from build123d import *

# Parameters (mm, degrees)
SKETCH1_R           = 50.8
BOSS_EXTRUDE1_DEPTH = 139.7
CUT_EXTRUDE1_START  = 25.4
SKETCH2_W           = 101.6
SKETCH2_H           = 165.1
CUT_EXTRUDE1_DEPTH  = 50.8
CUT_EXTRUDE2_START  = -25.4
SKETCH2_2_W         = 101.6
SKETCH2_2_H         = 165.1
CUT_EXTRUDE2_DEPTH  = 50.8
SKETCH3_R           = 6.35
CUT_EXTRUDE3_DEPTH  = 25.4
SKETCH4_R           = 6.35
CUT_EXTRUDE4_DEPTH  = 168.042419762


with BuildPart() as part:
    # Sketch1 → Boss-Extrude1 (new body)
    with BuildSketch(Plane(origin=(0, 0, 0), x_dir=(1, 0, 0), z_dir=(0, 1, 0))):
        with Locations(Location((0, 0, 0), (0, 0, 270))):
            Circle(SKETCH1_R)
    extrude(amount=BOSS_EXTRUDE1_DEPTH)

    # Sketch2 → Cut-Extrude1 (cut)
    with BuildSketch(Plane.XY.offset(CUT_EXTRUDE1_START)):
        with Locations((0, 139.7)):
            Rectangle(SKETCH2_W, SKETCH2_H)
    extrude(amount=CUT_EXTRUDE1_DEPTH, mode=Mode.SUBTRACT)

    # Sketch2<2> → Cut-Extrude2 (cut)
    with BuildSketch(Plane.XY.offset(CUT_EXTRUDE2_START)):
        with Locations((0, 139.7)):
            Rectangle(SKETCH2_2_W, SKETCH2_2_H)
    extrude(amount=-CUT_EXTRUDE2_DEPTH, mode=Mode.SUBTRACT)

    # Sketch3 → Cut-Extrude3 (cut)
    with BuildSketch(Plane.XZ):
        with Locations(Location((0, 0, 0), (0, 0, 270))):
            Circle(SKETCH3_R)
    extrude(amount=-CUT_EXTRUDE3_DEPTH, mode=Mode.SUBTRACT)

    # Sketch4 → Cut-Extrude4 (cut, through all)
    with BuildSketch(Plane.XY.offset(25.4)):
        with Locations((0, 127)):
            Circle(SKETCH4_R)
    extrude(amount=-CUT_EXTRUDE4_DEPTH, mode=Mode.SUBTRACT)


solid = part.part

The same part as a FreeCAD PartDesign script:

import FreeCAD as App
import Part
import Sketcher
from FreeCAD import Vector
Q = App.Units.Quantity


def add_polygon(sketch, points):
    """Adds a closed chain of lines whose ends are joined by coincident constraints."""
    first, n = sketch.GeometryCount, len(points)
    for a, b in zip(points, points[1:] + points[:1]):
        sketch.addGeometry(Part.LineSegment(App.Vector(*a, 0), App.Vector(*b, 0)), False)
    for i in range(n):
        sketch.addConstraint(Sketcher.Constraint("Coincident", first + i, 2, first + (i + 1) % n, 1))

doc = App.newDocument("Part")
params = doc.addObject("Spreadsheet::Sheet", "Params")
for row, (alias, value) in enumerate([
    ("sketch1_diameter", "4 in"),
    ("pad1_length", "5.5 in"),
    ("sketch2_width", "4 in"),
    ("sketch2_height", "6.5 in"),
    ("pocket1_length", "2 in"),
    ("sketch3_width", "4 in"),
    ("sketch3_height", "6.5 in"),
    ("pocket2_length", "2 in"),
    ("sketch4_diameter", "0.5 in"),
    ("pocket3_length", "1 in"),
    ("sketch5_diameter", "0.5 in"),
], start=1):
    params.set(f"A{row}", alias)
    params.set(f"B{row}", "=" + value)
    params.setAlias(f"B{row}", alias)

body = doc.addObject("PartDesign::Body", "Body")

# Sketch on XZ plane
sketch1 = body.newObject("Sketcher::SketchObject", "Sketch")
sketch1.AttachmentSupport = (doc.getObject("XZ_Plane"), [""])
sketch1.MapMode = "FlatFace"
sketch1.addGeometry(Part.Circle(Vector(0, 0, 0), Vector(0, 0, 1), 50.8), False)
sketch1.addConstraint(Sketcher.Constraint("Coincident", 0, 3, -1, 1))
sketch1.addConstraint(Sketcher.Constraint("Diameter", 0, Q("4 in")))
sketch1.setExpression("Constraints[1]", "Params.sketch1_diameter")
pad1 = body.newObject("PartDesign::Pad", "Pad")
pad1.Profile = sketch1
pad1.setExpression("Length", "Params.pad1_length")
pad1.Reversed = True

# Sketch on XY plane
sketch2 = body.newObject("Sketcher::SketchObject", "Sketch001")
sketch2.AttachmentSupport = (doc.getObject("XY_Plane"), [""])
sketch2.MapMode = "FlatFace"
sketch2.AttachmentOffset = App.Placement(Vector(0, 0, 1 * 25.4), App.Rotation())
add_polygon(sketch2, [(-50.8, 222.25), (-50.8, 57.15), (50.8, 57.15), (50.8, 222.25)])  # lines 0-3
sketch2.addConstraint(Sketcher.Constraint("Vertical", 0))
sketch2.addConstraint(Sketcher.Constraint("Horizontal", 1))
sketch2.addConstraint(Sketcher.Constraint("Vertical", 2))
sketch2.addConstraint(Sketcher.Constraint("Horizontal", 3))
sketch2.addConstraint(Sketcher.Constraint("DistanceX", 1, 1, 1, 2, Q("4 in")))
sketch2.addConstraint(Sketcher.Constraint("DistanceY", 0, 2, 0, 1, Q("6.5 in")))
sketch2.addConstraint(Sketcher.Constraint("DistanceX", 0, 2, -1, 1, Q("2 in")))
sketch2.addConstraint(Sketcher.Constraint("DistanceY", -1, 1, 0, 2, Q("2.25 in")))
sketch2.setExpression("Constraints[8]", "Params.sketch2_width")
sketch2.setExpression("Constraints[9]", "Params.sketch2_height")
pocket1 = body.newObject("PartDesign::Pocket", "Pocket")
pocket1.Profile = sketch2
pocket1.setExpression("Length", "Params.pocket1_length")
pocket1.Reversed = True

# Sketch on XY plane
sketch3 = body.newObject("Sketcher::SketchObject", "Sketch002")
sketch3.AttachmentSupport = (doc.getObject("XY_Plane"), [""])
sketch3.MapMode = "FlatFace"
sketch3.AttachmentOffset = App.Placement(Vector(0, 0, -1 * 25.4), App.Rotation())
add_polygon(sketch3, [(-50.8, 222.25), (-50.8, 57.15), (50.8, 57.15), (50.8, 222.25)])  # lines 0-3
sketch3.addConstraint(Sketcher.Constraint("Vertical", 0))
sketch3.addConstraint(Sketcher.Constraint("Horizontal", 1))
sketch3.addConstraint(Sketcher.Constraint("Vertical", 2))
sketch3.addConstraint(Sketcher.Constraint("Horizontal", 3))
sketch3.addConstraint(Sketcher.Constraint("DistanceX", 1, 1, 1, 2, Q("4 in")))
sketch3.addConstraint(Sketcher.Constraint("DistanceY", 0, 2, 0, 1, Q("6.5 in")))
sketch3.addConstraint(Sketcher.Constraint("DistanceX", 0, 2, -1, 1, Q("2 in")))
sketch3.addConstraint(Sketcher.Constraint("DistanceY", -1, 1, 0, 2, Q("2.25 in")))
sketch3.setExpression("Constraints[8]", "Params.sketch3_width")
sketch3.setExpression("Constraints[9]", "Params.sketch3_height")
pocket2 = body.newObject("PartDesign::Pocket", "Pocket001")
pocket2.Profile = sketch3
pocket2.setExpression("Length", "Params.pocket2_length")

# Sketch on XZ plane
sketch4 = body.newObject("Sketcher::SketchObject", "Sketch003")
sketch4.AttachmentSupport = (doc.getObject("XZ_Plane"), [""])
sketch4.MapMode = "FlatFace"
sketch4.addGeometry(Part.Circle(Vector(0, 0, 0), Vector(0, 0, 1), 6.35), False)
sketch4.addConstraint(Sketcher.Constraint("Coincident", 0, 3, -1, 1))
sketch4.addConstraint(Sketcher.Constraint("Diameter", 0, Q("0.5 in")))
sketch4.setExpression("Constraints[1]", "Params.sketch4_diameter")
pocket3 = body.newObject("PartDesign::Pocket", "Pocket002")
pocket3.Profile = sketch4
pocket3.setExpression("Length", "Params.pocket3_length")

# Sketch on XY plane
sketch5 = body.newObject("Sketcher::SketchObject", "Sketch004")
sketch5.AttachmentSupport = (doc.getObject("XY_Plane"), [""])
sketch5.MapMode = "FlatFace"
sketch5.AttachmentOffset = App.Placement(Vector(0, 0, 1 * 25.4), App.Rotation())
sketch5.addGeometry(Part.Circle(Vector(0, 127, 0), Vector(0, 0, 1), 6.35), False)
sketch5.addConstraint(Sketcher.Constraint("PointOnObject", 0, 3, -2))
sketch5.addConstraint(Sketcher.Constraint("Diameter", 0, Q("0.5 in")))
sketch5.addConstraint(Sketcher.Constraint("DistanceY", -1, 1, 0, 3, Q("5 in")))
sketch5.setExpression("Constraints[1]", "Params.sketch5_diameter")
pocket4 = body.newObject("PartDesign::Pocket", "Pocket003")
pocket4.Profile = sketch5
pocket4.Type = "ThroughAll"

doc.recompute()
